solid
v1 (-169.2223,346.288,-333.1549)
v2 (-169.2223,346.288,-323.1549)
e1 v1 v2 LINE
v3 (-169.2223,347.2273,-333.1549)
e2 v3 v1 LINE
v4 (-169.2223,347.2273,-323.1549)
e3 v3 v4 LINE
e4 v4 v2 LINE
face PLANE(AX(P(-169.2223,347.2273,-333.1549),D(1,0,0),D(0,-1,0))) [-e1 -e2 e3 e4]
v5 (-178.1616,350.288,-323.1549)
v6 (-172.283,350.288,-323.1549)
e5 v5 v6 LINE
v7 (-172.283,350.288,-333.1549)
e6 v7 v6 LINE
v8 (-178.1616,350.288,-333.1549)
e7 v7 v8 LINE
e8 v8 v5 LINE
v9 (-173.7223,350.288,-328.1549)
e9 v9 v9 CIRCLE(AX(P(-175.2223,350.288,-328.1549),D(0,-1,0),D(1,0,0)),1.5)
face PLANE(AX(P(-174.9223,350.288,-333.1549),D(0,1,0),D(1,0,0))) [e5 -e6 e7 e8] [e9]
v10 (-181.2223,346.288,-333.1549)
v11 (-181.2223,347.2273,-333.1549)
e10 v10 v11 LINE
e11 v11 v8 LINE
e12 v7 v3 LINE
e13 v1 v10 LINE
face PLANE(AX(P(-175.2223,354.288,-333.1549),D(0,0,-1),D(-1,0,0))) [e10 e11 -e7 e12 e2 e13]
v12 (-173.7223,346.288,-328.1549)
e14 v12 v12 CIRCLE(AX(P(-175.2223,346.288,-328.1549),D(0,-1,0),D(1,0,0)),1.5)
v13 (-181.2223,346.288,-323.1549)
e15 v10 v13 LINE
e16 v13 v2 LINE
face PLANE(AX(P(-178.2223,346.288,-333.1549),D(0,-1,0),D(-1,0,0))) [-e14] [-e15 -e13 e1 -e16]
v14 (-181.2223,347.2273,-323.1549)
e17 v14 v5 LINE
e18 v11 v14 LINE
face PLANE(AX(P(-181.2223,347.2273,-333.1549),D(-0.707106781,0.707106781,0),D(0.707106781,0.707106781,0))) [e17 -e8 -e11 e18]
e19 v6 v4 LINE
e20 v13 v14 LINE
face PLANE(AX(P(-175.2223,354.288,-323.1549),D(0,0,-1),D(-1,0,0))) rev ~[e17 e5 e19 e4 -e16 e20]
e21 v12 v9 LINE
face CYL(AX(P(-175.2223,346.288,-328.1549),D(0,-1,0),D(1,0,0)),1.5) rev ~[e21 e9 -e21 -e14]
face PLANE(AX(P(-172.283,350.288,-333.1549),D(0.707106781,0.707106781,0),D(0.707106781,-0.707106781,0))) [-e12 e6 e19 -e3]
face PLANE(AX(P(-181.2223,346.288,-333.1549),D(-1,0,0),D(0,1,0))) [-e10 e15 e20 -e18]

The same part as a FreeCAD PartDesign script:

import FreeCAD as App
import Part
import Sketcher
from FreeCAD import Vector
Q = App.Units.Quantity


def add_polygon(sketch, points):
    """Adds a closed chain of lines whose ends are joined by coincident constraints."""
    first, n = sketch.GeometryCount, len(points)
    for a, b in zip(points, points[1:] + points[:1]):
        sketch.addGeometry(Part.LineSegment(App.Vector(*a, 0), App.Vector(*b, 0)), False)
    for i in range(n):
        sketch.addConstraint(Sketcher.Constraint("Coincident", first + i, 2, first + (i + 1) % n, 1))

doc = App.newDocument("Part")
params = doc.addObject("Spreadsheet::Sheet", "Params")
for row, (alias, value) in enumerate([
    ("sketch1_width", "12 mm"),
    ("pad1_length", "10 mm"),
    ("sketch2_diameter", "3 mm"),
    ("pocket1_length", "10 mm"),
], start=1):
    params.set(f"A{row}", alias)
    params.set(f"B{row}", "=" + value)
    params.setAlias(f"B{row}", alias)

body = doc.addObject("PartDesign::Body", "Body")

sketch1 = doc.addObject("Sketcher::SketchObject", "Sketch")
body.addObject(sketch1)
sketch1.AttachmentSupport = (doc.XY_Plane, [""])
sketch1.MapMode = "FlatFace"
sketch1.AttachmentOffset = App.Placement(Vector(0, 0, -333.1549), App.Rotation())
add_polygon(sketch1, [(-178.2, 350.3), (-172.3, 350.3), (-169.2, 347.2), (-169.2, 346.3), (-181.2, 346.3), (-181.2, 347.2)])
sketch1.addConstraint(Sketcher.Constraint("Horizontal", 0))
sketch1.addConstraint(Sketcher.Constraint("Vertical", 2))
sketch1.addConstraint(Sketcher.Constraint("Horizontal", 3))
sketch1.addConstraint(Sketcher.Constraint("Vertical", 4))
sketch1.addConstraint(Sketcher.Constraint("Perpendicular", 1, 5))
sketch1.addConstraint(Sketcher.Constraint("Horizontal", 1, 2, 4, 2))
sketch1.addConstraint(Sketcher.Constraint("Equal", 1, 5))
sketch1.addConstraint(Sketcher.Constraint("DistanceX", 3, 2, 3, 1, Q("12 mm")))
sketch1.addConstraint(Sketcher.Constraint("DistanceY", 2, 2, 0, 2, Q("4 mm")))
sketch1.addConstraint(Sketcher.Constraint("DistanceX", 0, 1, 0, 2, Q("5.8786 mm")))
sketch1.addConstraint(Sketcher.Constraint("DistanceX", 0, 2, -1, 1, Q("172.283 mm")))
sketch1.addConstraint(Sketcher.Constraint("DistanceY", -1, 1, 0, 2, Q("350.288 mm")))
sketch1.setExpression("Constraints[13]", "Params.sketch1_width")
pad1 = doc.addObject("PartDesign::Pad", "Pad")
body.addObject(pad1)
pad1.Profile = sketch1
pad1.setExpression("Length", "Params.pad1_length")

sketch2 = doc.addObject("Sketcher::SketchObject", "Sketch001")
body.addObject(sketch2)
sketch2.AttachmentSupport = (doc.XZ_Plane, [""])
sketch2.MapMode = "FlatFace"
sketch2.AttachmentOffset = App.Placement(Vector(0, 0, -346.288), App.Rotation())
sketch2.addGeometry(Part.Circle(Vector(-175.2, -328.2, 0), Vector(0, 0, 1), 1.5), False)
sketch2.addConstraint(Sketcher.Constraint("Diameter", 0, Q("3 mm")))
sketch2.addConstraint(Sketcher.Constraint("DistanceY", 0, 3, -1, 1, Q("328.155 mm")))
sketch2.addConstraint(Sketcher.Constraint("DistanceX", 0, 3, -1, 1, Q("175.2223 mm")))
sketch2.setExpression("Constraints[0]", "Params.sketch2_diameter")
pocket1 = doc.addObject("PartDesign::Pocket", "Pocket")
body.addObject(pocket1)
pocket1.Profile = sketch2
pocket1.setExpression("Length", "Params.pocket1_length")

doc.recompute()
